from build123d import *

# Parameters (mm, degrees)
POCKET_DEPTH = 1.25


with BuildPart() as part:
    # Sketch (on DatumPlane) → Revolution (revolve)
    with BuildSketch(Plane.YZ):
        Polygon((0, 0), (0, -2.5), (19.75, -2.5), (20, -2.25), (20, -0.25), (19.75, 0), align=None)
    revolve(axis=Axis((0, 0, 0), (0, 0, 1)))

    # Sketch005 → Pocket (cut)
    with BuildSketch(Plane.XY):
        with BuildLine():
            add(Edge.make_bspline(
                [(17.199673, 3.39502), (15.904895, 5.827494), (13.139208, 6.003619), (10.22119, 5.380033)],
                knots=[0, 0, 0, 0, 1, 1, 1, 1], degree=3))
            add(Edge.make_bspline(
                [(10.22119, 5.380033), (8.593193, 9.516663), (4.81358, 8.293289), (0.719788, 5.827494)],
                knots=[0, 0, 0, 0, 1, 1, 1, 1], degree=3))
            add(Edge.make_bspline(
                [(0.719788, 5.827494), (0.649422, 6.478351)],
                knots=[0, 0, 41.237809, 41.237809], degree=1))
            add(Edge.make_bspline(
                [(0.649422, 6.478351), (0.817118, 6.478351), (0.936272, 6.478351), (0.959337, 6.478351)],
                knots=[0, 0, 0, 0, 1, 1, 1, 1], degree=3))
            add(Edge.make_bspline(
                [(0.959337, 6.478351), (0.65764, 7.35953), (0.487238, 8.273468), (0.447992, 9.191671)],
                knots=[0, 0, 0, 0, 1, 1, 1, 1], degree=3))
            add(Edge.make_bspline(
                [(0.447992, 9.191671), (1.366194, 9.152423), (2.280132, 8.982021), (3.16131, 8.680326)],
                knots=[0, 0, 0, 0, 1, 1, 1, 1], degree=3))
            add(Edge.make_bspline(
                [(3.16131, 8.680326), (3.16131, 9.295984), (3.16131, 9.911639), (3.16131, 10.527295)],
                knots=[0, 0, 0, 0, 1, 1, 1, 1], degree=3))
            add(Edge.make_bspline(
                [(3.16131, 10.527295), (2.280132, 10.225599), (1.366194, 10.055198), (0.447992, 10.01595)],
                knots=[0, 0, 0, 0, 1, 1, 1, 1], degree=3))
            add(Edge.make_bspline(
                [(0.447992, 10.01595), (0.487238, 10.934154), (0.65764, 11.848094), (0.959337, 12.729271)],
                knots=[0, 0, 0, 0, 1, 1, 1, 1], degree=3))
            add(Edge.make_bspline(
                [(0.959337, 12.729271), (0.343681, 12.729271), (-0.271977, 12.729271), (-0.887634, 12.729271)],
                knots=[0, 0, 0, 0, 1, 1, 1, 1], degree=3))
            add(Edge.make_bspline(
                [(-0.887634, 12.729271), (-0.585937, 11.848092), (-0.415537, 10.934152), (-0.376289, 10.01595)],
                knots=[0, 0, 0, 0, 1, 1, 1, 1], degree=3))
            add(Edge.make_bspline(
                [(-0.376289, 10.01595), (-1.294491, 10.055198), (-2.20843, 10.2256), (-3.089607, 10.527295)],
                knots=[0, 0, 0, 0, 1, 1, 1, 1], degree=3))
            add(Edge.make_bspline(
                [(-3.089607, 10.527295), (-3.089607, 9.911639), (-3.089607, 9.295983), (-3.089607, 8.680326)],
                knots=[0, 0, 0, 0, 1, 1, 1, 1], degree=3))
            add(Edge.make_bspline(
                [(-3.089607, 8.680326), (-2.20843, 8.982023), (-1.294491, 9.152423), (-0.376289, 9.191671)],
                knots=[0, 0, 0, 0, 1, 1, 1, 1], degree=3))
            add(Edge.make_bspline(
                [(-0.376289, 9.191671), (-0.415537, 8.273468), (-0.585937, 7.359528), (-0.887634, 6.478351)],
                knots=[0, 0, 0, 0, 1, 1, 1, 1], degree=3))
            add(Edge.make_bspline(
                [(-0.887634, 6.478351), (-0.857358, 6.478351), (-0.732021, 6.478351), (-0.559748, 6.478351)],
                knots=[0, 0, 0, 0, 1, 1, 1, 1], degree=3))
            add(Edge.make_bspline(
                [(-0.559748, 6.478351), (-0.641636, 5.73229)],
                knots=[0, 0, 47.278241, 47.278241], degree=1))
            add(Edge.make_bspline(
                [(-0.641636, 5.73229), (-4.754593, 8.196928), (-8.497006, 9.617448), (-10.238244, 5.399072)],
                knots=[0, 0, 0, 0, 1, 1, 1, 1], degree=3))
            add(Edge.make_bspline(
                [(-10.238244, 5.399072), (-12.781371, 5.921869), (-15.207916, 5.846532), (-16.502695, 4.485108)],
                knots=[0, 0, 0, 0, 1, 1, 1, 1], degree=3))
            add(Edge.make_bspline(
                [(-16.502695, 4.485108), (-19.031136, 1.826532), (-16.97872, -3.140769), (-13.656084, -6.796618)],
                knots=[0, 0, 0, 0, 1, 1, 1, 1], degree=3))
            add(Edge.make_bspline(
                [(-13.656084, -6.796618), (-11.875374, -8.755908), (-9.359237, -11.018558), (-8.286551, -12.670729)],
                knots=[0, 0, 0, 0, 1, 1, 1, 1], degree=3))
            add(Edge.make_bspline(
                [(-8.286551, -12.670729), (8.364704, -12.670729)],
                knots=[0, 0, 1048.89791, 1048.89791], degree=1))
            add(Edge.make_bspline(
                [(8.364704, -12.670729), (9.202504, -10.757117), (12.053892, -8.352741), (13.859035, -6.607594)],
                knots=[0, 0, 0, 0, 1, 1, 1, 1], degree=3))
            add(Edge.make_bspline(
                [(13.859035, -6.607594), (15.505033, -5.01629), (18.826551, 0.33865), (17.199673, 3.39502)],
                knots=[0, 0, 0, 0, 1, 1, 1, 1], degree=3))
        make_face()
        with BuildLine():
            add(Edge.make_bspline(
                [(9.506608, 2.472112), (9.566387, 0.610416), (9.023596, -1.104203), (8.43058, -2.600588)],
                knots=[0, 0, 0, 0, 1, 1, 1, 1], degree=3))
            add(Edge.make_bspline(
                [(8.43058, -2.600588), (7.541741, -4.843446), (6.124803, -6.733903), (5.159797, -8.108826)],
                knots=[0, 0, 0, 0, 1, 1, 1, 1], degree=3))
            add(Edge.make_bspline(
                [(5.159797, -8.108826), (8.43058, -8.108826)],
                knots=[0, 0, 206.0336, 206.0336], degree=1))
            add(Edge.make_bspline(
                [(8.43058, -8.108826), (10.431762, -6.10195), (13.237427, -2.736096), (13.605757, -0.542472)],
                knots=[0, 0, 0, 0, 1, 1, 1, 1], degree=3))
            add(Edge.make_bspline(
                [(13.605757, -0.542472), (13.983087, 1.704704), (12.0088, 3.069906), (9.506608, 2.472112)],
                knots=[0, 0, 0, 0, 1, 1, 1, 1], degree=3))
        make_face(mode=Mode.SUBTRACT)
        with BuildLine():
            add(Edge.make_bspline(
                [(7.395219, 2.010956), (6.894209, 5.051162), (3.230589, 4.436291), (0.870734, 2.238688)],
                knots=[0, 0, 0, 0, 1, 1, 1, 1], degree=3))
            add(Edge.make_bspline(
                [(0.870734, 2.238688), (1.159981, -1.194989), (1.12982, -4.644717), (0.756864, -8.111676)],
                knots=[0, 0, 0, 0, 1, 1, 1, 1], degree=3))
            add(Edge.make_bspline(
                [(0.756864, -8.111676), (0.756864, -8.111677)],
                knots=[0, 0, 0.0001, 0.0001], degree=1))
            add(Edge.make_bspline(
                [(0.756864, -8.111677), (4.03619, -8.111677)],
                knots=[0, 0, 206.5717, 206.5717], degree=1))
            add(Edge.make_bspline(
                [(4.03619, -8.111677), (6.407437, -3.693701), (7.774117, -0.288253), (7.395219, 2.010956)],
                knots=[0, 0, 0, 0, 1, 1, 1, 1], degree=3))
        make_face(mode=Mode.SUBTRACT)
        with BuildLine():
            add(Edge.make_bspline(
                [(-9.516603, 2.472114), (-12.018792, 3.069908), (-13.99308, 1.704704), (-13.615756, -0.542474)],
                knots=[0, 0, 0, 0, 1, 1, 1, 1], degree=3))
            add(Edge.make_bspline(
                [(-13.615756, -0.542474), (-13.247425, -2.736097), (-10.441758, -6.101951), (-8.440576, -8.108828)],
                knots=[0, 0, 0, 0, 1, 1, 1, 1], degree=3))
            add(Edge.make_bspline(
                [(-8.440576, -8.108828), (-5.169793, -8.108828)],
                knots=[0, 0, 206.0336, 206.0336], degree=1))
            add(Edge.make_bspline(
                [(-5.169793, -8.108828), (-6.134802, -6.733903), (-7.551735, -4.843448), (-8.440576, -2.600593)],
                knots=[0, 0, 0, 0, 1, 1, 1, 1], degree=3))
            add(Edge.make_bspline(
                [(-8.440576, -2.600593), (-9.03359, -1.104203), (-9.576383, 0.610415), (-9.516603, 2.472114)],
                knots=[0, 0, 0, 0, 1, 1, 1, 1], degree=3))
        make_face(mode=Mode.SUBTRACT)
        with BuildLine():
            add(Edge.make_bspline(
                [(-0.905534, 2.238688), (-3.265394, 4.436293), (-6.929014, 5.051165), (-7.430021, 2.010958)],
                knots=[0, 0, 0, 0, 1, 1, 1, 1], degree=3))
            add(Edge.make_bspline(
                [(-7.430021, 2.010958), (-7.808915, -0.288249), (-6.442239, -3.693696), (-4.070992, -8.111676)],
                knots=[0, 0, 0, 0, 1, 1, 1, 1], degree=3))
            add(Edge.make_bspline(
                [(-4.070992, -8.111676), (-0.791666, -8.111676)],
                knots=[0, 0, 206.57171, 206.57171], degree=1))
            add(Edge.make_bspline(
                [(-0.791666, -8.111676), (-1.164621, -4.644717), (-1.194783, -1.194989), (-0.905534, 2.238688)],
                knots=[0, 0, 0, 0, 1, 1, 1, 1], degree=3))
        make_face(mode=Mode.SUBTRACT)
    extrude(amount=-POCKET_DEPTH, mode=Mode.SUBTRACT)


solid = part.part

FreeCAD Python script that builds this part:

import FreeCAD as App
import Part
import Sketcher

V = App.Vector
Q = App.Units.Quantity


def add_polygon(sketch, points):
    """Adds a closed chain of lines whose ends are joined by coincident constraints."""
    first, n = sketch.GeometryCount, len(points)
    for a, b in zip(points, points[1:] + points[:1]):
        sketch.addGeometry(Part.LineSegment(App.Vector(*a, 0), App.Vector(*b, 0)), False)
    for i in range(n):
        sketch.addConstraint(Sketcher.Constraint("Coincident", first + i, 2, first + (i + 1) % n, 1))

doc = App.newDocument("Part")
body = doc.addObject("PartDesign::Body", "Body")

sketch1 = body.newObject("Sketcher::SketchObject", "Sketch")
sketch1.AttachmentSupport = (doc.getObject("YZ_Plane"), [""])
sketch1.MapMode = "FlatFace"
add_polygon(sketch1, [(0, 0), (0, -2.5), (19.75, -2.5), (20, -2.25), (20, -0.25), (19.75, 0)])
sketch1.addConstraint(Sketcher.Constraint("Vertical", 0))
sketch1.addConstraint(Sketcher.Constraint("Horizontal", 1))
sketch1.addConstraint(Sketcher.Constraint("Vertical", 3))
sketch1.addConstraint(Sketcher.Constraint("Horizontal", 5))
sketch1.addConstraint(Sketcher.Constraint("Coincident", 5, 2, -1, 1))
sketch1.addConstraint(Sketcher.Constraint("Perpendicular", 2, 4))
sketch1.addConstraint(Sketcher.Constraint("Vertical", 1, 2, 4, 2))
sketch1.addConstraint(Sketcher.Constraint("Equal", 2, 4))
sketch1.addConstraint(Sketcher.Constraint("DistanceY", 3, 1, 3, 2, Q("2 mm")))
sketch1.addConstraint(Sketcher.Constraint("DistanceY", 0, 2, 0, 1, Q("2.5 mm")))
sketch1.addConstraint(Sketcher.Constraint("DistanceX", -1, 1, 2, 2, Q("20 mm")))
revolution = body.newObject("PartDesign::Revolution", "Revolution")
revolution.Profile = sketch1
revolution.ReferenceAxis = (sketch1, ["V_Axis"])
revolution.Angle = 360

sketch2 = body.newObject("Sketcher::SketchObject", "Sketch001")
sketch2.AttachmentSupport = (doc.getObject("XY_Plane"), [""])
sketch2.MapMode = "FlatFace"
sketch2.addGeometry(Part.BSplineCurve([V(17.199673, 3.39502, 0), V(15.904895, 5.827494, 0), V(13.139208, 6.003619, 0), V(10.22119, 5.380033, 0)], [4, 4], [0, 1], False, 3, [1, 1, 1, 1], False), False)
sketch2.addGeometry(Part.BSplineCurve([V(10.22119, 5.380033, 0), V(8.593193, 9.516663, 0), V(4.81358, 8.293289, 0), V(0.719788, 5.827494, 0)], [4, 4], [0, 1], False, 3, [1, 1, 1, 1], False), False)
sketch2.addGeometry(Part.BSplineCurve([V(0.719788, 5.827494, 0), V(0.649422, 6.478351, 0)], [2, 2], [0, 41.237809], False, 1, [1, 1], False), False)
sketch2.addGeometry(Part.BSplineCurve([V(0.649422, 6.478351, 0), V(0.817118, 6.478351, 0), V(0.936272, 6.478351, 0), V(0.959337, 6.478351, 0)], [4, 4], [0, 1], False, 3, [1, 1, 1, 1], False), False)
sketch2.addGeometry(Part.BSplineCurve([V(0.959337, 6.478351, 0), V(0.65764, 7.35953, 0), V(0.487238, 8.273468, 0), V(0.447992, 9.191671, 0)], [4, 4], [0, 1], False, 3, [1, 1, 1, 1], False), False)
sketch2.addGeometry(Part.BSplineCurve([V(0.447992, 9.191671, 0), V(1.366194, 9.152423, 0), V(2.280132, 8.982021, 0), V(3.16131, 8.680326, 0)], [4, 4], [0, 1], False, 3, [1, 1, 1, 1], False), False)
sketch2.addGeometry(Part.BSplineCurve([V(3.16131, 8.680326, 0), V(3.16131, 9.295984, 0), V(3.16131, 9.911639, 0), V(3.16131, 10.527295, 0)], [4, 4], [0, 1], False, 3, [1, 1, 1, 1], False), False)
sketch2.addGeometry(Part.BSplineCurve([V(3.16131, 10.527295, 0), V(2.280132, 10.225599, 0), V(1.366194, 10.055198, 0), V(0.447992, 10.01595, 0)], [4, 4], [0, 1], False, 3, [1, 1, 1, 1], False), False)
sketch2.addGeometry(Part.BSplineCurve([V(0.447992, 10.01595, 0), V(0.487238, 10.934154, 0), V(0.65764, 11.848094, 0), V(0.959337, 12.729271, 0)], [4, 4], [0, 1], False, 3, [1, 1, 1, 1], False), False)
sketch2.addGeometry(Part.BSplineCurve([V(0.959337, 12.729271, 0), V(0.343681, 12.729271, 0), V(-0.271977, 12.729271, 0), V(-0.887634, 12.729271, 0)], [4, 4], [0, 1], False, 3, [1, 1, 1, 1], False), False)
sketch2.addGeometry(Part.BSplineCurve([V(-0.887634, 12.729271, 0), V(-0.585937, 11.848092, 0), V(-0.415537, 10.934152, 0), V(-0.376289, 10.01595, 0)], [4, 4], [0, 1], False, 3, [1, 1, 1, 1], False), False)
sketch2.addGeometry(Part.BSplineCurve([V(-0.376289, 10.01595, 0), V(-1.294491, 10.055198, 0), V(-2.20843, 10.2256, 0), V(-3.089607, 10.527295, 0)], [4, 4], [0, 1], False, 3, [1, 1, 1, 1], False), False)
sketch2.addGeometry(Part.BSplineCurve([V(-3.089607, 10.527295, 0), V(-3.089607, 9.911639, 0), V(-3.089607, 9.295983, 0), V(-3.089607, 8.680326, 0)], [4, 4], [0, 1], False, 3, [1, 1, 1, 1], False), False)
sketch2.addGeometry(Part.BSplineCurve([V(-3.089607, 8.680326, 0), V(-2.20843, 8.982023, 0), V(-1.294491, 9.152423, 0), V(-0.376289, 9.191671, 0)], [4, 4], [0, 1], False, 3, [1, 1, 1, 1], False), False)
sketch2.addGeometry(Part.BSplineCurve([V(-0.376289, 9.191671, 0), V(-0.415537, 8.273468, 0), V(-0.585937, 7.359528, 0), V(-0.887634, 6.478351, 0)], [4, 4], [0, 1], False, 3, [1, 1, 1, 1], False), False)
sketch2.addGeometry(Part.BSplineCurve([V(-0.887634, 6.478351, 0), V(-0.857358, 6.478351, 0), V(-0.732021, 6.478351, 0), V(-0.559748, 6.478351, 0)], [4, 4], [0, 1], False, 3, [1, 1, 1, 1], False), False)
sketch2.addGeometry(Part.BSplineCurve([V(-0.559748, 6.478351, 0), V(-0.641636, 5.73229, 0)], [2, 2], [0, 47.278241], False, 1, [1, 1], False), False)
sketch2.addGeometry(Part.BSplineCurve([V(-0.641636, 5.73229, 0), V(-4.754593, 8.196928, 0), V(-8.497006, 9.617448, 0), V(-10.238244, 5.399072, 0)], [4, 4], [0, 1], False, 3, [1, 1, 1, 1], False), False)
sketch2.addGeometry(Part.BSplineCurve([V(-10.238244, 5.399072, 0), V(-12.781371, 5.921869, 0), V(-15.207916, 5.846532, 0), V(-16.502695, 4.485108, 0)], [4, 4], [0, 1], False, 3, [1, 1, 1, 1], False), False)
sketch2.addGeometry(Part.BSplineCurve([V(-16.502695, 4.485108, 0), V(-19.031136, 1.826532, 0), V(-16.97872, -3.140769, 0), V(-13.656084, -6.796618, 0)], [4, 4], [0, 1], False, 3, [1, 1, 1, 1], False), False)
sketch2.addGeometry(Part.BSplineCurve([V(-13.656084, -6.796618, 0), V(-11.875374, -8.755908, 0), V(-9.359237, -11.018558, 0), V(-8.286551, -12.670729, 0)], [4, 4], [0, 1], False, 3, [1, 1, 1, 1], False), False)
sketch2.addGeometry(Part.BSplineCurve([V(-8.286551, -12.670729, 0), V(8.364704, -12.670729, 0)], [2, 2], [0, 1048.89791], False, 1, [1, 1], False), False)
sketch2.addGeometry(Part.BSplineCurve([V(8.364704, -12.670729, 0), V(9.202504, -10.757117, 0), V(12.053892, -8.352741, 0), V(13.859035, -6.607594, 0)], [4, 4], [0, 1], False, 3, [1, 1, 1, 1], False), False)
sketch2.addGeometry(Part.BSplineCurve([V(13.859035, -6.607594, 0), V(15.505033, -5.01629, 0), V(18.826551, 0.33865, 0), V(17.199673, 3.39502, 0)], [4, 4], [0, 1], False, 3, [1, 1, 1, 1], False), False)
sketch2.addGeometry(Part.BSplineCurve([V(-9.516603, 2.472114, 0), V(-12.018792, 3.069908, 0), V(-13.99308, 1.704704, 0), V(-13.615756, -0.542474, 0)], [4, 4], [0, 1], False, 3, [1, 1, 1, 1], False), False)
sketch2.addGeometry(Part.BSplineCurve([V(-8.440576, -2.600593, 0), V(-9.03359, -1.104203, 0), V(-9.576383, 0.610415, 0), V(-9.516603, 2.472114, 0)], [4, 4], [0, 1], False, 3, [1, 1, 1, 1], False), False)
sketch2.addGeometry(Part.BSplineCurve([V(-5.169793, -8.108828, 0), V(-6.134802, -6.733903, 0), V(-7.551735, -4.843448, 0), V(-8.440576, -2.600593, 0)], [4, 4], [0, 1], False, 3, [1, 1, 1, 1], False), False)
sketch2.addGeometry(Part.BSplineCurve([V(-8.440576, -8.108828, 0), V(-5.169793, -8.108828, 0)], [2, 2], [0, 206.0336], False, 1, [1, 1], False), False)
sketch2.addGeometry(Part.BSplineCurve([V(-13.615756, -0.542474, 0), V(-13.247425, -2.736097, 0), V(-10.441758, -6.101951, 0), V(-8.440576, -8.108828, 0)], [4, 4], [0, 1], False, 3, [1, 1, 1, 1], False), False)
sketch2.addGeometry(Part.BSplineCurve([V(7.395219, 2.010956, 0), V(6.894209, 5.051162, 0), V(3.230589, 4.436291, 0), V(0.870734, 2.238688, 0)], [4, 4], [0, 1], False, 3, [1, 1, 1, 1], False), False)
sketch2.addGeometry(Part.BSplineCurve([V(4.03619, -8.111677, 0), V(6.407437, -3.693701, 0), V(7.774117, -0.288253, 0), V(7.395219, 2.010956, 0)], [4, 4], [0, 1], False, 3, [1, 1, 1, 1], False), False)
sketch2.addGeometry(Part.BSplineCurve([V(0.756864, -8.111677, 0), V(4.03619, -8.111677, 0)], [2, 2], [0, 206.5717], False, 1, [1, 1], False), False)
sketch2.addGeometry(Part.BSplineCurve([V(0.756864, -8.111676, 0), V(0.756864, -8.111677, 0)], [2, 2], [0, 0.0001], False, 1, [1, 1], False), False)
sketch2.addGeometry(Part.BSplineCurve([V(0.870734, 2.238688, 0), V(1.159981, -1.194989, 0), V(1.12982, -4.644717, 0), V(0.756864, -8.111676, 0)], [4, 4], [0, 1], False, 3, [1, 1, 1, 1], False), False)
sketch2.addGeometry(Part.BSplineCurve([V(9.506608, 2.472112, 0), V(9.566387, 0.610416, 0), V(9.023596, -1.104203, 0), V(8.43058, -2.600588, 0)], [4, 4], [0, 1], False, 3, [1, 1, 1, 1], False), False)
sketch2.addGeometry(Part.BSplineCurve([V(13.605757, -0.542472, 0), V(13.983087, 1.704704, 0), V(12.0088, 3.069906, 0), V(9.506608, 2.472112, 0)], [4, 4], [0, 1], False, 3, [1, 1, 1, 1], False), False)
sketch2.addGeometry(Part.BSplineCurve([V(8.43058, -8.108826, 0), V(10.431762, -6.10195, 0), V(13.237427, -2.736096, 0), V(13.605757, -0.542472, 0)], [4, 4], [0, 1], False, 3, [1, 1, 1, 1], False), False)
sketch2.addGeometry(Part.BSplineCurve([V(5.159797, -8.108826, 0), V(8.43058, -8.108826, 0)], [2, 2], [0, 206.0336], False, 1, [1, 1], False), False)
sketch2.addGeometry(Part.BSplineCurve([V(8.43058, -2.600588, 0), V(7.541741, -4.843446, 0), V(6.124803, -6.733903, 0), V(5.159797, -8.108826, 0)], [4, 4], [0, 1], False, 3, [1, 1, 1, 1], False), False)
sketch2.addGeometry(Part.BSplineCurve([V(-0.905534, 2.238688, 0), V(-3.265394, 4.436293, 0), V(-6.929014, 5.051165, 0), V(-7.430021, 2.010958, 0)], [4, 4], [0, 1], False, 3, [1, 1, 1, 1], False), False)
sketch2.addGeometry(Part.BSplineCurve([V(-0.791666, -8.111676, 0), V(-1.164621, -4.644717, 0), V(-1.194783, -1.194989, 0), V(-0.905534, 2.238688, 0)], [4, 4], [0, 1], False, 3, [1, 1, 1, 1], False), False)
sketch2.addGeometry(Part.BSplineCurve([V(-4.070992, -8.111676, 0), V(-0.791666, -8.111676, 0)], [2, 2], [0, 206.57171], False, 1, [1, 1], False), False)
sketch2.addGeometry(Part.BSplineCurve([V(-7.430021, 2.010958, 0), V(-7.808915, -0.288249, 0), V(-6.442239, -3.693696, 0), V(-4.070992, -8.111676, 0)], [4, 4], [0, 1], False, 3, [1, 1, 1, 1], False), False)
sketch2.addConstraint(Sketcher.Constraint("Block", 0))
sketch2.addConstraint(Sketcher.Constraint("Block", 1))
sketch2.addConstraint(Sketcher.Constraint("Block", 2))
sketch2.addConstraint(Sketcher.Constraint("Block", 3))
sketch2.addConstraint(Sketcher.Constraint("Block", 4))
sketch2.addConstraint(Sketcher.Constraint("Block", 5))
sketch2.addConstraint(Sketcher.Constraint("Block", 6))
sketch2.addConstraint(Sketcher.Constraint("Block", 7))
sketch2.addConstraint(Sketcher.Constraint("Block", 8))
sketch2.addConstraint(Sketcher.Constraint("Block", 9))
sketch2.addConstraint(Sketcher.Constraint("Block", 10))
sketch2.addConstraint(Sketcher.Constraint("Block", 11))
sketch2.addConstraint(Sketcher.Constraint("Block", 12))
sketch2.addConstraint(Sketcher.Constraint("Block", 13))
sketch2.addConstraint(Sketcher.Constraint("Block", 14))
sketch2.addConstraint(Sketcher.Constraint("Block", 15))
sketch2.addConstraint(Sketcher.Constraint("Block", 16))
sketch2.addConstraint(Sketcher.Constraint("Block", 17))
sketch2.addConstraint(Sketcher.Constraint("Block", 18))
sketch2.addConstraint(Sketcher.Constraint("Block", 19))
sketch2.addConstraint(Sketcher.Constraint("Block", 20))
sketch2.addConstraint(Sketcher.Constraint("Block", 21))
sketch2.addConstraint(Sketcher.Constraint("Block", 22))
sketch2.addConstraint(Sketcher.Constraint("Block", 23))
sketch2.addConstraint(Sketcher.Constraint("Block", 24))
sketch2.addConstraint(Sketcher.Constraint("Block", 25))
sketch2.addConstraint(Sketcher.Constraint("Block", 26))
sketch2.addConstraint(Sketcher.Constraint("Block", 27))
sketch2.addConstraint(Sketcher.Constraint("Block", 28))
sketch2.addConstraint(Sketcher.Constraint("Block", 29))
sketch2.addConstraint(Sketcher.Constraint("Block", 30))
sketch2.addConstraint(Sketcher.Constraint("Block", 31))
sketch2.addConstraint(Sketcher.Constraint("Block", 32))
sketch2.addConstraint(Sketcher.Constraint("Block", 33))
sketch2.addConstraint(Sketcher.Constraint("Block", 34))
sketch2.addConstraint(Sketcher.Constraint("Block", 35))
sketch2.addConstraint(Sketcher.Constraint("Block", 36))
sketch2.addConstraint(Sketcher.Constraint("Block", 37))
sketch2.addConstraint(Sketcher.Constraint("Block", 38))
sketch2.addConstraint(Sketcher.Constraint("Block", 39))
sketch2.addConstraint(Sketcher.Constraint("Block", 40))
sketch2.addConstraint(Sketcher.Constraint("Block", 41))
sketch2.addConstraint(Sketcher.Constraint("Block", 42))
pocket1 = body.newObject("PartDesign::Pocket", "Pocket")
pocket1.Profile = sketch2
pocket1.Length = 1.25

doc.recompute()
